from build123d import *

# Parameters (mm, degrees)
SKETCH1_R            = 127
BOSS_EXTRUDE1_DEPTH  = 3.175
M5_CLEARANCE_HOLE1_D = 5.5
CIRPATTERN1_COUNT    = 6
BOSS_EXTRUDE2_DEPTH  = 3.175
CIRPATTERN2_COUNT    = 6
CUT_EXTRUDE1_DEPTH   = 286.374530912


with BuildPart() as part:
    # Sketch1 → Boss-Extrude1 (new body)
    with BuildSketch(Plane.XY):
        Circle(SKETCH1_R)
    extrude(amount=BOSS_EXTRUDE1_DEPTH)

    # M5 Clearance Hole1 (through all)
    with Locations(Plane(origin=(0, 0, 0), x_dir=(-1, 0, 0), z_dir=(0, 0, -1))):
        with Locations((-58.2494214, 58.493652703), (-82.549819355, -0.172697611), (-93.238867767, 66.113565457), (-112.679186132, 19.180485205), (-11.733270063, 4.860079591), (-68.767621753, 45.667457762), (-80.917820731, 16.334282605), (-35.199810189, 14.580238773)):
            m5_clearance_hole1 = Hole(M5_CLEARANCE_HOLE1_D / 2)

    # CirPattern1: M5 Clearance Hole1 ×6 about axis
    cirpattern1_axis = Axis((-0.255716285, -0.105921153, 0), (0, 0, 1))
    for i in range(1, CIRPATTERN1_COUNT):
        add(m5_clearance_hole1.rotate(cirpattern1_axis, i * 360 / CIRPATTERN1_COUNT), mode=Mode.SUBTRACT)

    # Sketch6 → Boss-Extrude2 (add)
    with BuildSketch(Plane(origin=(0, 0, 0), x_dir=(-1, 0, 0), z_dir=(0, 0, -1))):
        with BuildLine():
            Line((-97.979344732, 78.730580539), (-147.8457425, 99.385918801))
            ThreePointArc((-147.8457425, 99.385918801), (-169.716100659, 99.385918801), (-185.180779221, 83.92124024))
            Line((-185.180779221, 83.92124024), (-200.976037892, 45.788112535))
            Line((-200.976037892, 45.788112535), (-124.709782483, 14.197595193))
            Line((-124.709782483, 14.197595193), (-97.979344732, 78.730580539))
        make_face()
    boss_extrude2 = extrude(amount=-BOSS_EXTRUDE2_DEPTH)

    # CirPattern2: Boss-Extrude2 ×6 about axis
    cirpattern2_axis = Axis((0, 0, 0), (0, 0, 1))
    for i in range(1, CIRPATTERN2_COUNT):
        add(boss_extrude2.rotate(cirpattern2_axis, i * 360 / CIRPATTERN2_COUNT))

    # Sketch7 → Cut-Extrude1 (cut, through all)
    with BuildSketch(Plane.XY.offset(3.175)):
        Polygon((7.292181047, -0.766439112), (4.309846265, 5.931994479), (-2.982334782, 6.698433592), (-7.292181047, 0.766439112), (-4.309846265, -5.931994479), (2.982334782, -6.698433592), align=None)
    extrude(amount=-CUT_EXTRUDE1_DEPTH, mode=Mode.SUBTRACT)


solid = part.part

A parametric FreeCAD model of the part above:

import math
import FreeCAD as App
import Part
import Sketcher

V = App.Vector
Q = App.Units.Quantity


def add_polygon(sketch, points):
    """Adds a closed chain of lines whose ends are joined by coincident constraints."""
    first, n = sketch.GeometryCount, len(points)
    for a, b in zip(points, points[1:] + points[:1]):
        sketch.addGeometry(Part.LineSegment(App.Vector(*a, 0), App.Vector(*b, 0)), False)
    for i in range(n):
        sketch.addConstraint(Sketcher.Constraint("Coincident", first + i, 2, first + (i + 1) % n, 1))

doc = App.newDocument("Part")
body = doc.addObject("PartDesign::Body", "Body")

sketch1 = body.newObject("Sketcher::SketchObject", "Sketch")
sketch1.AttachmentSupport = (doc.getObject("XY_Plane"), [""])
sketch1.MapMode = "FlatFace"
sketch1.addGeometry(Part.Circle(V(0, 0, 0), V(0, 0, 1), 127), False)
sketch1.addConstraint([
    Sketcher.Constraint("Coincident", 0, 3, -1, 1),
    Sketcher.Constraint("Diameter", 0, Q("10 in")),
])
pad1 = body.newObject("PartDesign::Pad", "Pad")
pad1.Profile = sketch1
pad1.Length = Q("0.125 in")

sketch2 = body.newObject("Sketcher::SketchObject", "Sketch001")
sketch2.AttachmentSupport = (doc.getObject("XY_Plane"), [""])
sketch2.MapMode = "FlatFace"
sketch2.addGeometry([
    Part.Circle(V(58.2, 58.5, 0), V(0, 0, 1), 2.8),
    Part.Circle(V(82.5, -0.2, 0), V(0, 0, 1), 2.8),
    Part.Circle(V(93.2, 66.1, 0), V(0, 0, 1), 2.8),
    Part.Circle(V(112.7, 19.2, 0), V(0, 0, 1), 2.8),
    Part.Circle(V(11.7, 4.9, 0), V(0, 0, 1), 2.8),
    Part.Circle(V(68.8, 45.7, 0), V(0, 0, 1), 2.8),
    Part.Circle(V(80.9, 16.3, 0), V(0, 0, 1), 2.8),
    Part.Circle(V(35.2, 14.6, 0), V(0, 0, 1), 2.8),
], False)
sketch2.addConstraint([
    Sketcher.Constraint("Equal", 0, 1),
    Sketcher.Constraint("Equal", 1, 2),
    Sketcher.Constraint("Equal", 2, 3),
    Sketcher.Constraint("Equal", 3, 4),
    Sketcher.Constraint("Equal", 4, 5),
    Sketcher.Constraint("Equal", 5, 6),
    Sketcher.Constraint("Equal", 6, 7),
    Sketcher.Constraint("Diameter", 0, 5.5),
    Sketcher.Constraint("DistanceX", 0, 3, 5, 3, 10.5182),
    Sketcher.Constraint("DistanceX", 6, 3, 1, 3, 1.631999),
    Sketcher.Constraint("DistanceX", 5, 3, 6, 3, 12.150199),
    Sketcher.Constraint("DistanceX", -1, 1, 0, 3, 58.249421),
    Sketcher.Constraint("DistanceX", -1, 1, 4, 3, 11.73327),
    Sketcher.Constraint("DistanceY", -1, 1, 4, 3, 4.86008),
    Sketcher.Constraint("DistanceX", -1, 1, 7, 3, 35.19981),
    Sketcher.Constraint("DistanceY", -1, 1, 7, 3, 14.580239),
    Sketcher.Constraint("DistanceY", 1, 3, 0, 3, 58.66635),
    Sketcher.Constraint("DistanceX", 1, 3, 2, 3, 10.689048),
    Sketcher.Constraint("DistanceX", 2, 3, 3, 3, 19.440318),
    Sketcher.Constraint("DistanceY", 3, 3, 2, 3, 46.93308),
    Sketcher.Constraint("DistanceY", 4, 3, 5, 3, 40.807378),
    Sketcher.Constraint("DistanceY", 1, 3, 6, 3, 16.50698),
    Sketcher.Constraint("DistanceY", -1, 1, 0, 3, 58.493653),
    Sketcher.Constraint("DistanceY", -1, 1, 2, 3, 66.113565),
])
doc.recompute()
hole = body.newObject("PartDesign::Hole", "Hole")
hole.Profile = sketch2
hole.ThreadType = "None"
hole.Diameter = 5.5
hole.DepthType = "ThroughAll"
hole.Reversed = True
doc.recompute()

datumline = body.newObject("PartDesign::Line", "DatumLine")
datumline.Placement = App.Placement(V(-0.255716, -0.105921, 0), App.Rotation(V(0, 0, 1), V(0, 0, 1)))
polarpattern = body.newObject("PartDesign::PolarPattern", "PolarPattern")
polarpattern.Originals = [hole]
polarpattern.Axis = (datumline, [""])
polarpattern.Angle = 360
polarpattern.Occurrences = 6
body.Tip = polarpattern

sketch3 = body.newObject("Sketcher::SketchObject", "Sketch002")
sketch3.AttachmentSupport = (doc.getObject("XY_Plane"), [""])
sketch3.MapMode = "FlatFace"
sketch3.addGeometry([
    Part.LineSegment(V(98, 79, 0), V(148, 99, 0)),
    Part.ArcOfCircle(Part.Circle(V(159, 73, 0), V(0, 0, 1), 29), math.radians(23), math.radians(112)),
    Part.LineSegment(V(185, 84, 0), V(201, 46, 0)),
    Part.LineSegment(V(201, 46, 0), V(125, 14, 0)),
    Part.LineSegment(V(125, 14, 0), V(98, 79, 0)),
], False)
sketch3.addConstraint([
    Sketcher.Constraint("Tangent", 0, 2, 1, 2),
    Sketcher.Constraint("Tangent", 1, 1, 2, 1),
    Sketcher.Constraint("Coincident", 2, 2, 3, 1),
    Sketcher.Constraint("Coincident", 3, 2, 4, 1),
    Sketcher.Constraint("Coincident", 4, 2, 0, 1),
    Sketcher.Constraint("Perpendicular", 0, 2),
    Sketcher.Constraint("Perpendicular", 2, 3),
    Sketcher.Constraint("Perpendicular", 3, 4),
    Sketcher.Constraint("Radius", 1, Q("1.125 in")),
    Sketcher.Constraint("Angle", 0, Q("22.5 deg")),
    Sketcher.Constraint("Distance", 3, Q("3.25 in")),
    Sketcher.Constraint("Distance", 4, Q("2.75 in")),
    Sketcher.Constraint("DistanceX", -1, 1, 1, 3, 158.780922),
    Sketcher.Constraint("DistanceY", -1, 1, 1, 3, 72.986061),
])
pad2 = body.newObject("PartDesign::Pad", "Pad001")
pad2.Profile = sketch3
pad2.Length = Q("0.125 in")
doc.recompute()

polarpattern2 = body.newObject("PartDesign::PolarPattern", "PolarPattern001")
polarpattern2.Originals = [pad2]
polarpattern2.Axis = (doc.getObject("Z_Axis"), [""])
polarpattern2.Angle = 360
polarpattern2.Occurrences = 6
body.Tip = polarpattern2

sketch4 = body.newObject("Sketcher::SketchObject", "Sketch003")
sketch4.AttachmentSupport = (doc.getObject("XY_Plane"), [""])
sketch4.MapMode = "FlatFace"
sketch4.AttachmentOffset = App.Placement(V(0, 0, 0.125 * 25.4), App.Rotation())
add_polygon(sketch4, [(7, -1), (4, 6), (-3, 7), (-7, 1), (-4, -6), (3, -7)])
sketch4.addConstraint([
    Sketcher.Constraint("Symmetric", 0, 2, 3, 2, -1, 1),
    Sketcher.Constraint("Symmetric", 1, 2, 4, 2, -1, 1),
    Sketcher.Constraint("Symmetric", 2, 2, 5, 2, -1, 1),
    Sketcher.Constraint("Equal", 0, 1),
    Sketcher.Constraint("Equal", 1, 2),
    Sketcher.Constraint("Angle", 0, Q("114 deg")),
    Sketcher.Constraint("Angle", 1, Q("174 deg")),
    Sketcher.Constraint("Angle", 2, Q("-126 deg")),
    Sketcher.Constraint("Distance", 0, 7.332348),
])
pocket1 = body.newObject("PartDesign::Pocket", "Pocket")
pocket1.Profile = sketch4
pocket1.Type = "ThroughAll"

doc.recompute()
